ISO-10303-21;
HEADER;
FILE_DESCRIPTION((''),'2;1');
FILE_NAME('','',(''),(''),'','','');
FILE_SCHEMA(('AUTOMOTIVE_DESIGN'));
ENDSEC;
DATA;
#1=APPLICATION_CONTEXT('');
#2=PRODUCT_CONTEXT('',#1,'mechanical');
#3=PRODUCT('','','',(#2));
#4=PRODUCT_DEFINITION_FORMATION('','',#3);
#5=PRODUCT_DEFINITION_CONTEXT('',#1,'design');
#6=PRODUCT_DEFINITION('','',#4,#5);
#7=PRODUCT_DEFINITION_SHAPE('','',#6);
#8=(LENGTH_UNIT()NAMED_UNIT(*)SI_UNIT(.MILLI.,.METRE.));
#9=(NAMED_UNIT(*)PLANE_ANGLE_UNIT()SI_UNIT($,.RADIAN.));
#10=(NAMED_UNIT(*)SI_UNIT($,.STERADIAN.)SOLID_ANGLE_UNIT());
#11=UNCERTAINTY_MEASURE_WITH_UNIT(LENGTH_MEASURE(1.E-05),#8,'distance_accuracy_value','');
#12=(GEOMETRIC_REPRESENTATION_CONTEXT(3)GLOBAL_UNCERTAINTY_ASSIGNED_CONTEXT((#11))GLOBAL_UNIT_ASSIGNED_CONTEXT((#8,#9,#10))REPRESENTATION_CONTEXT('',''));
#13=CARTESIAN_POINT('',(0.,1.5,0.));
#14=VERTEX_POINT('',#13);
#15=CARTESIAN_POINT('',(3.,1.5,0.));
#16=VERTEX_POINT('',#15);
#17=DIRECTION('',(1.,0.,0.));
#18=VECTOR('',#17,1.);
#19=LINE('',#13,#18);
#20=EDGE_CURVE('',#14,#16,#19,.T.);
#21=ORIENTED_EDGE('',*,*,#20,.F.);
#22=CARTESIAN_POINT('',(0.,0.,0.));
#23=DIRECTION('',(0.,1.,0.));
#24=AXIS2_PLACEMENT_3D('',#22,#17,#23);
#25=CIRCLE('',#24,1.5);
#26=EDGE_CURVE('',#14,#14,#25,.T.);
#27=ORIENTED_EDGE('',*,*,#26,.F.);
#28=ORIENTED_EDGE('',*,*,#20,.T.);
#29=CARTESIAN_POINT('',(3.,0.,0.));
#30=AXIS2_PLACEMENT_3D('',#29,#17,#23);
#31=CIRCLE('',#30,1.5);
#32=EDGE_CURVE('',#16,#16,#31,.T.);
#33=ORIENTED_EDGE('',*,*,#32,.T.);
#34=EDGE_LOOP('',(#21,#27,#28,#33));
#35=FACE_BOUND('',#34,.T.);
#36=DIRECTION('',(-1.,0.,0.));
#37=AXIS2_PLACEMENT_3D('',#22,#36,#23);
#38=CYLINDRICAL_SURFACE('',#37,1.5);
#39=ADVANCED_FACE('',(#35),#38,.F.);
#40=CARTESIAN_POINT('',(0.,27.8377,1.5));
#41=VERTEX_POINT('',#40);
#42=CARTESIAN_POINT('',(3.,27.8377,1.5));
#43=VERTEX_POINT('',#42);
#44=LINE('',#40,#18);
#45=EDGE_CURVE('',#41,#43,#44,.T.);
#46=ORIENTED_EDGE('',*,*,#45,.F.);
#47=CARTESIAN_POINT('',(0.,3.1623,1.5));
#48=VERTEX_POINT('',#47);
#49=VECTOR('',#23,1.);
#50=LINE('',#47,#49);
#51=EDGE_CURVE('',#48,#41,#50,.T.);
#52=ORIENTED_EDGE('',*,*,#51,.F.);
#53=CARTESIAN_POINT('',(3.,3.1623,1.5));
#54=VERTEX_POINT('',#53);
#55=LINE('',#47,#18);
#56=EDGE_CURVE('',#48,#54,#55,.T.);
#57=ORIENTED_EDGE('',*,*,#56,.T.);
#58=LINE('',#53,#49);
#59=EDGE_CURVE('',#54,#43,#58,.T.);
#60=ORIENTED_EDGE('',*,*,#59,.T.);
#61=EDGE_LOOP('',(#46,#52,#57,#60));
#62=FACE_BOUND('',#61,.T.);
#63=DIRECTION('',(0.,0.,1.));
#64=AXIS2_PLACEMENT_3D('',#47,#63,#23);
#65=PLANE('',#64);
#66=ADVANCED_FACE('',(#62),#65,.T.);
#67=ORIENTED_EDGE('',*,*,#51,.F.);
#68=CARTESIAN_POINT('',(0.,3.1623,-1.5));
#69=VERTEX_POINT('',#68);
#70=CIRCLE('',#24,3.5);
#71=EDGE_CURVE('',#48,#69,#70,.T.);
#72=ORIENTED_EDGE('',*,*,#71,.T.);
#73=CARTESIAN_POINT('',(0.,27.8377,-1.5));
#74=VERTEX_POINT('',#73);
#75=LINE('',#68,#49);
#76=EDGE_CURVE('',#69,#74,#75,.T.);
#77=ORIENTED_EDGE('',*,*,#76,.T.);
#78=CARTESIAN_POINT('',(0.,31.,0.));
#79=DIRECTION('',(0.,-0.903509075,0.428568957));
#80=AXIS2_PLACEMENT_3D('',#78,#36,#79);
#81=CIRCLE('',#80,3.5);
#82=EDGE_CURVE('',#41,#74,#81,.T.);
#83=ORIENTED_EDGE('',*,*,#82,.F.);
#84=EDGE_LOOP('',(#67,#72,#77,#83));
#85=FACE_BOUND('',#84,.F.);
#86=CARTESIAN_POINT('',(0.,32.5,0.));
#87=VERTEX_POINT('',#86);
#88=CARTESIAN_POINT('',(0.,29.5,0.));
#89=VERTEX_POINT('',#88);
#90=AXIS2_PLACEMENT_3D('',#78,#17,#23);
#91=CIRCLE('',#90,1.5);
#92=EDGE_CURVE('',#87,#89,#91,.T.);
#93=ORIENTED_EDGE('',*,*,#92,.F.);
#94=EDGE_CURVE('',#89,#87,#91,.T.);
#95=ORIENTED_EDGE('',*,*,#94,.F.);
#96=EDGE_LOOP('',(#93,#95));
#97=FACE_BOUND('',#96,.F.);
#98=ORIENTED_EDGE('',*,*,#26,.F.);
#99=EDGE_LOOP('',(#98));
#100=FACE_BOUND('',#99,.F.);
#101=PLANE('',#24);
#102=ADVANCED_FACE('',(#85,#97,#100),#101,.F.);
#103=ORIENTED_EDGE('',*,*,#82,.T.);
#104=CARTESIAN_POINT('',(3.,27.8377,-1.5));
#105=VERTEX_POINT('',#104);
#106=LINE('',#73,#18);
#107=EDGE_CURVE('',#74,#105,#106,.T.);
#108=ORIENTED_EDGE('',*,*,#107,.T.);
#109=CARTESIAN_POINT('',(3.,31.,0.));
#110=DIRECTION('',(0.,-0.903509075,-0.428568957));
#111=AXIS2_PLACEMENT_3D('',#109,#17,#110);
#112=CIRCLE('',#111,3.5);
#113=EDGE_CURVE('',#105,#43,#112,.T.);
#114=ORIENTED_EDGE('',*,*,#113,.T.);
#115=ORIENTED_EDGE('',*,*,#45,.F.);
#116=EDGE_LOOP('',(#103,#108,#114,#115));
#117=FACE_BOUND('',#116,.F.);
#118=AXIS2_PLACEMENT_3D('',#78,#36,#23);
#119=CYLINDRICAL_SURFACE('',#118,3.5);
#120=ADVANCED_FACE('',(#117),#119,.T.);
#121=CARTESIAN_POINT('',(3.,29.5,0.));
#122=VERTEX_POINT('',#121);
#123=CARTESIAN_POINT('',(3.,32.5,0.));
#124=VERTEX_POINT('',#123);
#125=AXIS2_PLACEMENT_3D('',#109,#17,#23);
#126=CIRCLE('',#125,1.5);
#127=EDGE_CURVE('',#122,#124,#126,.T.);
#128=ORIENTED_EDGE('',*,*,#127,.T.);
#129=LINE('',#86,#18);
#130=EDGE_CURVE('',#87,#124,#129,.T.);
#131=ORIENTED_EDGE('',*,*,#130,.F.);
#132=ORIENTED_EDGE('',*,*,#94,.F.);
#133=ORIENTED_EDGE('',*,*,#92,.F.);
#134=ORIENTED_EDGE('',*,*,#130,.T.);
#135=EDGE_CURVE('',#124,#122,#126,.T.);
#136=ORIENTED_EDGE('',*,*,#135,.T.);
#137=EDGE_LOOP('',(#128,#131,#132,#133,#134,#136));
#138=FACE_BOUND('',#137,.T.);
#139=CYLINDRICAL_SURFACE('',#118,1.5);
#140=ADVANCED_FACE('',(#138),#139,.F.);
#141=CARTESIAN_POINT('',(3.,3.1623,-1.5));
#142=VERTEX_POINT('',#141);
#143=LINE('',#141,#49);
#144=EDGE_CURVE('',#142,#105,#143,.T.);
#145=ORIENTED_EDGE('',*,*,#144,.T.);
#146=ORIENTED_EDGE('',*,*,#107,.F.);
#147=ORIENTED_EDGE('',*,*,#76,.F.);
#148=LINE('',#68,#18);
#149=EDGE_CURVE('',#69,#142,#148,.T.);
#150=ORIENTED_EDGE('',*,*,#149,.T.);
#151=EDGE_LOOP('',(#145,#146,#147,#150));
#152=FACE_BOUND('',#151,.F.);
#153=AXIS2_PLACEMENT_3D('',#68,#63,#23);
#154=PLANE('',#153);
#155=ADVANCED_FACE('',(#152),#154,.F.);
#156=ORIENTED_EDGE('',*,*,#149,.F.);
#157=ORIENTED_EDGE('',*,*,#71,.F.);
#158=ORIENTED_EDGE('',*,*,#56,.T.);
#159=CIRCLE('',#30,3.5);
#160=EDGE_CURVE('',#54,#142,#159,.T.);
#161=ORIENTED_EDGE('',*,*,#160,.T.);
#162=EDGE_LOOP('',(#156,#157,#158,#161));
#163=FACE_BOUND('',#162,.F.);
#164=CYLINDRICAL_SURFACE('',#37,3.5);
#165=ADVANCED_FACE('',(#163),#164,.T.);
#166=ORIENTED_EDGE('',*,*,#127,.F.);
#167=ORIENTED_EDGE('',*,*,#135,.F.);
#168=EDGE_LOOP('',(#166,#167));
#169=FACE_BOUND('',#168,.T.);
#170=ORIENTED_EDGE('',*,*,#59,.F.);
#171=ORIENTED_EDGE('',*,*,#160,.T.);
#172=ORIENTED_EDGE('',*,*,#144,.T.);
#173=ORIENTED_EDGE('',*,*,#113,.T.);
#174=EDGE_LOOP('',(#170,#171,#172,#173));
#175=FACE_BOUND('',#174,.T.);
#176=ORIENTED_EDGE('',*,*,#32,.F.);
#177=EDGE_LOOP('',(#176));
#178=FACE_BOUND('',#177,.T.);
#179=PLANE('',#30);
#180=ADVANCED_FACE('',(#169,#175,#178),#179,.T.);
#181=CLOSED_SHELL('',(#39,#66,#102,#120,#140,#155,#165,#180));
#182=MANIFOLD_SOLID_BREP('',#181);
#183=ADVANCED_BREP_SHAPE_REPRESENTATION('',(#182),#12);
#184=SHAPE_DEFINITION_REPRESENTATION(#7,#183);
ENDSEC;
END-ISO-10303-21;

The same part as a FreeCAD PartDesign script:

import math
import FreeCAD as App
import Part
import Sketcher
Q = App.Units.Quantity

doc = App.newDocument("Part")
body = doc.addObject("PartDesign::Body", "Body")

# Sketch on YZ plane
sketch1 = body.newObject("Sketcher::SketchObject", "Sketch")
sketch1.AttachmentSupport = (doc.getObject("YZ_Plane"), [""])
sketch1.MapMode = "FlatFace"
sketch1.addGeometry([
    Part.ArcOfCircle(Part.Circle(App.Vector(0, 0, 0), App.Vector(0, 0, 1), 3.5), math.radians(25.376777), math.radians(334.623223)),  # 0
    Part.LineSegment(App.Vector(3.1623, -1.5, 0), App.Vector(27.8377, -1.5, 0)),  # 1
    Part.ArcOfCircle(Part.Circle(App.Vector(31, 0, 0), App.Vector(0, 0, 1), 3.5), math.radians(-154.623223), math.radians(154.623223)),  # 2
    Part.LineSegment(App.Vector(27.8377, 1.5, 0), App.Vector(3.1623, 1.5, 0)),  # 3
    Part.Circle(App.Vector(0, 0, 0), App.Vector(0, 0, 1), 1.5),  # 4
    Part.Circle(App.Vector(31, 0, 0), App.Vector(0, 0, 1), 1.5),  # 5
], False)
sketch1.addConstraint([
    Sketcher.Constraint("Coincident", 0, 2, 1, 1),
    Sketcher.Constraint("Coincident", 1, 2, 2, 1),
    Sketcher.Constraint("Coincident", 2, 2, 3, 1),
    Sketcher.Constraint("Coincident", 3, 2, 0, 1),
    Sketcher.Constraint("Horizontal", 1),
    Sketcher.Constraint("Horizontal", 3),
    Sketcher.Constraint("Coincident", 0, 3, -1, 1),
    Sketcher.Constraint("Coincident", 4, 3, -1, 1),
    Sketcher.Constraint("Coincident", 5, 3, 2, 3),
    Sketcher.Constraint("Equal", 0, 2),
    Sketcher.Constraint("Equal", 4, 5),
    Sketcher.Constraint("Symmetric", 1, 2, 2, 2, -1),
    Sketcher.Constraint("Diameter", 4, Q("3 mm")),
    Sketcher.Constraint("Radius", 0, Q("3.5 mm")),
    Sketcher.Constraint("DistanceY", 1, 2, 2, 2, Q("3 mm")),
    Sketcher.Constraint("DistanceX", -1, 1, 2, 3, Q("31 mm")),
])
pad1 = body.newObject("PartDesign::Pad", "Pad")
pad1.Profile = sketch1
pad1.Length = 3

doc.recompute()
